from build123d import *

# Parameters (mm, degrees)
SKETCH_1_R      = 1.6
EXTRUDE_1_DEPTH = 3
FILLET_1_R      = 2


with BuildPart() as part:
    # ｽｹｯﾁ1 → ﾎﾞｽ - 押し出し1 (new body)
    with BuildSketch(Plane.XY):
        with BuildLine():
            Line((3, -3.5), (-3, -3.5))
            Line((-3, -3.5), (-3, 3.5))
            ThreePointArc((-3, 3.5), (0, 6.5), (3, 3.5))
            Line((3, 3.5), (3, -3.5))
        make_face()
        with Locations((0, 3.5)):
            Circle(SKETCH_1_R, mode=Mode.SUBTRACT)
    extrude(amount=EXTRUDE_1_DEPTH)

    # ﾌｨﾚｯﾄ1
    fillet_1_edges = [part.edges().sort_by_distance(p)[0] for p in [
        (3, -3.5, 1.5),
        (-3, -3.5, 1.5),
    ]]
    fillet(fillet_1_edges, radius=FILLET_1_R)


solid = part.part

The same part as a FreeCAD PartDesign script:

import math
import FreeCAD as App
import Part
import Sketcher
Q = App.Units.Quantity


def edges_at(feature, points):
    """Names of the edges that pass closest to the given points."""
    edges = feature.Shape.Edges
    near = lambda p: min(range(len(edges)), key=lambda i: edges[i].distToShape(Part.Vertex(*p))[0])
    return sorted({f"Edge{near(p) + 1}" for p in points})

doc = App.newDocument("Part")
body = doc.addObject("PartDesign::Body", "Body")

# Sketch on XY plane
sketch1 = body.newObject("Sketcher::SketchObject", "Sketch")
sketch1.AttachmentSupport = (doc.getObject("XY_Plane"), [""])
sketch1.MapMode = "FlatFace"
sketch1.addGeometry([
    Part.LineSegment(App.Vector(-3, -3.5, 0), App.Vector(3, -3.5, 0)),  # 0
    Part.LineSegment(App.Vector(3, -3.5, 0), App.Vector(3, 3.5, 0)),  # 1
    Part.ArcOfCircle(Part.Circle(App.Vector(0, 3.5, 0), App.Vector(0, 0, 1), 3), math.radians(0), math.radians(180)),  # 2
    Part.LineSegment(App.Vector(-3, 3.5, 0), App.Vector(-3, -3.5, 0)),  # 3
    Part.Circle(App.Vector(0, 3.5, 0), App.Vector(0, 0, 1), 1.6),  # 4
], False)
sketch1.addConstraint([
    Sketcher.Constraint("Coincident", 0, 2, 1, 1),
    Sketcher.Constraint("Tangent", 1, 2, 2, 1),
    Sketcher.Constraint("Tangent", 2, 2, 3, 1),
    Sketcher.Constraint("Coincident", 3, 2, 0, 1),
    Sketcher.Constraint("Horizontal", 0),
    Sketcher.Constraint("Vertical", 1),
    Sketcher.Constraint("Vertical", 3),
    Sketcher.Constraint("Coincident", 4, 3, 2, 3),
    Sketcher.Constraint("Symmetric", 0, 2, 2, 2, -1, 1),
    Sketcher.Constraint("Radius", 2, Q("3 mm")),
    Sketcher.Constraint("Diameter", 4, Q("3.2 mm")),
    Sketcher.Constraint("DistanceY", 1, 1, 1, 2, Q("7 mm")),
])
pad1 = body.newObject("PartDesign::Pad", "Pad")
pad1.Profile = sketch1
pad1.Length = 3
doc.recompute()

fillet = body.newObject("PartDesign::Fillet", "Fillet")
fillet.Base = (pad1, edges_at(pad1, [(3, -3.5, 1.5), (-3, -3.5, 1.5)]))
fillet.Radius = 2

doc.recompute()
